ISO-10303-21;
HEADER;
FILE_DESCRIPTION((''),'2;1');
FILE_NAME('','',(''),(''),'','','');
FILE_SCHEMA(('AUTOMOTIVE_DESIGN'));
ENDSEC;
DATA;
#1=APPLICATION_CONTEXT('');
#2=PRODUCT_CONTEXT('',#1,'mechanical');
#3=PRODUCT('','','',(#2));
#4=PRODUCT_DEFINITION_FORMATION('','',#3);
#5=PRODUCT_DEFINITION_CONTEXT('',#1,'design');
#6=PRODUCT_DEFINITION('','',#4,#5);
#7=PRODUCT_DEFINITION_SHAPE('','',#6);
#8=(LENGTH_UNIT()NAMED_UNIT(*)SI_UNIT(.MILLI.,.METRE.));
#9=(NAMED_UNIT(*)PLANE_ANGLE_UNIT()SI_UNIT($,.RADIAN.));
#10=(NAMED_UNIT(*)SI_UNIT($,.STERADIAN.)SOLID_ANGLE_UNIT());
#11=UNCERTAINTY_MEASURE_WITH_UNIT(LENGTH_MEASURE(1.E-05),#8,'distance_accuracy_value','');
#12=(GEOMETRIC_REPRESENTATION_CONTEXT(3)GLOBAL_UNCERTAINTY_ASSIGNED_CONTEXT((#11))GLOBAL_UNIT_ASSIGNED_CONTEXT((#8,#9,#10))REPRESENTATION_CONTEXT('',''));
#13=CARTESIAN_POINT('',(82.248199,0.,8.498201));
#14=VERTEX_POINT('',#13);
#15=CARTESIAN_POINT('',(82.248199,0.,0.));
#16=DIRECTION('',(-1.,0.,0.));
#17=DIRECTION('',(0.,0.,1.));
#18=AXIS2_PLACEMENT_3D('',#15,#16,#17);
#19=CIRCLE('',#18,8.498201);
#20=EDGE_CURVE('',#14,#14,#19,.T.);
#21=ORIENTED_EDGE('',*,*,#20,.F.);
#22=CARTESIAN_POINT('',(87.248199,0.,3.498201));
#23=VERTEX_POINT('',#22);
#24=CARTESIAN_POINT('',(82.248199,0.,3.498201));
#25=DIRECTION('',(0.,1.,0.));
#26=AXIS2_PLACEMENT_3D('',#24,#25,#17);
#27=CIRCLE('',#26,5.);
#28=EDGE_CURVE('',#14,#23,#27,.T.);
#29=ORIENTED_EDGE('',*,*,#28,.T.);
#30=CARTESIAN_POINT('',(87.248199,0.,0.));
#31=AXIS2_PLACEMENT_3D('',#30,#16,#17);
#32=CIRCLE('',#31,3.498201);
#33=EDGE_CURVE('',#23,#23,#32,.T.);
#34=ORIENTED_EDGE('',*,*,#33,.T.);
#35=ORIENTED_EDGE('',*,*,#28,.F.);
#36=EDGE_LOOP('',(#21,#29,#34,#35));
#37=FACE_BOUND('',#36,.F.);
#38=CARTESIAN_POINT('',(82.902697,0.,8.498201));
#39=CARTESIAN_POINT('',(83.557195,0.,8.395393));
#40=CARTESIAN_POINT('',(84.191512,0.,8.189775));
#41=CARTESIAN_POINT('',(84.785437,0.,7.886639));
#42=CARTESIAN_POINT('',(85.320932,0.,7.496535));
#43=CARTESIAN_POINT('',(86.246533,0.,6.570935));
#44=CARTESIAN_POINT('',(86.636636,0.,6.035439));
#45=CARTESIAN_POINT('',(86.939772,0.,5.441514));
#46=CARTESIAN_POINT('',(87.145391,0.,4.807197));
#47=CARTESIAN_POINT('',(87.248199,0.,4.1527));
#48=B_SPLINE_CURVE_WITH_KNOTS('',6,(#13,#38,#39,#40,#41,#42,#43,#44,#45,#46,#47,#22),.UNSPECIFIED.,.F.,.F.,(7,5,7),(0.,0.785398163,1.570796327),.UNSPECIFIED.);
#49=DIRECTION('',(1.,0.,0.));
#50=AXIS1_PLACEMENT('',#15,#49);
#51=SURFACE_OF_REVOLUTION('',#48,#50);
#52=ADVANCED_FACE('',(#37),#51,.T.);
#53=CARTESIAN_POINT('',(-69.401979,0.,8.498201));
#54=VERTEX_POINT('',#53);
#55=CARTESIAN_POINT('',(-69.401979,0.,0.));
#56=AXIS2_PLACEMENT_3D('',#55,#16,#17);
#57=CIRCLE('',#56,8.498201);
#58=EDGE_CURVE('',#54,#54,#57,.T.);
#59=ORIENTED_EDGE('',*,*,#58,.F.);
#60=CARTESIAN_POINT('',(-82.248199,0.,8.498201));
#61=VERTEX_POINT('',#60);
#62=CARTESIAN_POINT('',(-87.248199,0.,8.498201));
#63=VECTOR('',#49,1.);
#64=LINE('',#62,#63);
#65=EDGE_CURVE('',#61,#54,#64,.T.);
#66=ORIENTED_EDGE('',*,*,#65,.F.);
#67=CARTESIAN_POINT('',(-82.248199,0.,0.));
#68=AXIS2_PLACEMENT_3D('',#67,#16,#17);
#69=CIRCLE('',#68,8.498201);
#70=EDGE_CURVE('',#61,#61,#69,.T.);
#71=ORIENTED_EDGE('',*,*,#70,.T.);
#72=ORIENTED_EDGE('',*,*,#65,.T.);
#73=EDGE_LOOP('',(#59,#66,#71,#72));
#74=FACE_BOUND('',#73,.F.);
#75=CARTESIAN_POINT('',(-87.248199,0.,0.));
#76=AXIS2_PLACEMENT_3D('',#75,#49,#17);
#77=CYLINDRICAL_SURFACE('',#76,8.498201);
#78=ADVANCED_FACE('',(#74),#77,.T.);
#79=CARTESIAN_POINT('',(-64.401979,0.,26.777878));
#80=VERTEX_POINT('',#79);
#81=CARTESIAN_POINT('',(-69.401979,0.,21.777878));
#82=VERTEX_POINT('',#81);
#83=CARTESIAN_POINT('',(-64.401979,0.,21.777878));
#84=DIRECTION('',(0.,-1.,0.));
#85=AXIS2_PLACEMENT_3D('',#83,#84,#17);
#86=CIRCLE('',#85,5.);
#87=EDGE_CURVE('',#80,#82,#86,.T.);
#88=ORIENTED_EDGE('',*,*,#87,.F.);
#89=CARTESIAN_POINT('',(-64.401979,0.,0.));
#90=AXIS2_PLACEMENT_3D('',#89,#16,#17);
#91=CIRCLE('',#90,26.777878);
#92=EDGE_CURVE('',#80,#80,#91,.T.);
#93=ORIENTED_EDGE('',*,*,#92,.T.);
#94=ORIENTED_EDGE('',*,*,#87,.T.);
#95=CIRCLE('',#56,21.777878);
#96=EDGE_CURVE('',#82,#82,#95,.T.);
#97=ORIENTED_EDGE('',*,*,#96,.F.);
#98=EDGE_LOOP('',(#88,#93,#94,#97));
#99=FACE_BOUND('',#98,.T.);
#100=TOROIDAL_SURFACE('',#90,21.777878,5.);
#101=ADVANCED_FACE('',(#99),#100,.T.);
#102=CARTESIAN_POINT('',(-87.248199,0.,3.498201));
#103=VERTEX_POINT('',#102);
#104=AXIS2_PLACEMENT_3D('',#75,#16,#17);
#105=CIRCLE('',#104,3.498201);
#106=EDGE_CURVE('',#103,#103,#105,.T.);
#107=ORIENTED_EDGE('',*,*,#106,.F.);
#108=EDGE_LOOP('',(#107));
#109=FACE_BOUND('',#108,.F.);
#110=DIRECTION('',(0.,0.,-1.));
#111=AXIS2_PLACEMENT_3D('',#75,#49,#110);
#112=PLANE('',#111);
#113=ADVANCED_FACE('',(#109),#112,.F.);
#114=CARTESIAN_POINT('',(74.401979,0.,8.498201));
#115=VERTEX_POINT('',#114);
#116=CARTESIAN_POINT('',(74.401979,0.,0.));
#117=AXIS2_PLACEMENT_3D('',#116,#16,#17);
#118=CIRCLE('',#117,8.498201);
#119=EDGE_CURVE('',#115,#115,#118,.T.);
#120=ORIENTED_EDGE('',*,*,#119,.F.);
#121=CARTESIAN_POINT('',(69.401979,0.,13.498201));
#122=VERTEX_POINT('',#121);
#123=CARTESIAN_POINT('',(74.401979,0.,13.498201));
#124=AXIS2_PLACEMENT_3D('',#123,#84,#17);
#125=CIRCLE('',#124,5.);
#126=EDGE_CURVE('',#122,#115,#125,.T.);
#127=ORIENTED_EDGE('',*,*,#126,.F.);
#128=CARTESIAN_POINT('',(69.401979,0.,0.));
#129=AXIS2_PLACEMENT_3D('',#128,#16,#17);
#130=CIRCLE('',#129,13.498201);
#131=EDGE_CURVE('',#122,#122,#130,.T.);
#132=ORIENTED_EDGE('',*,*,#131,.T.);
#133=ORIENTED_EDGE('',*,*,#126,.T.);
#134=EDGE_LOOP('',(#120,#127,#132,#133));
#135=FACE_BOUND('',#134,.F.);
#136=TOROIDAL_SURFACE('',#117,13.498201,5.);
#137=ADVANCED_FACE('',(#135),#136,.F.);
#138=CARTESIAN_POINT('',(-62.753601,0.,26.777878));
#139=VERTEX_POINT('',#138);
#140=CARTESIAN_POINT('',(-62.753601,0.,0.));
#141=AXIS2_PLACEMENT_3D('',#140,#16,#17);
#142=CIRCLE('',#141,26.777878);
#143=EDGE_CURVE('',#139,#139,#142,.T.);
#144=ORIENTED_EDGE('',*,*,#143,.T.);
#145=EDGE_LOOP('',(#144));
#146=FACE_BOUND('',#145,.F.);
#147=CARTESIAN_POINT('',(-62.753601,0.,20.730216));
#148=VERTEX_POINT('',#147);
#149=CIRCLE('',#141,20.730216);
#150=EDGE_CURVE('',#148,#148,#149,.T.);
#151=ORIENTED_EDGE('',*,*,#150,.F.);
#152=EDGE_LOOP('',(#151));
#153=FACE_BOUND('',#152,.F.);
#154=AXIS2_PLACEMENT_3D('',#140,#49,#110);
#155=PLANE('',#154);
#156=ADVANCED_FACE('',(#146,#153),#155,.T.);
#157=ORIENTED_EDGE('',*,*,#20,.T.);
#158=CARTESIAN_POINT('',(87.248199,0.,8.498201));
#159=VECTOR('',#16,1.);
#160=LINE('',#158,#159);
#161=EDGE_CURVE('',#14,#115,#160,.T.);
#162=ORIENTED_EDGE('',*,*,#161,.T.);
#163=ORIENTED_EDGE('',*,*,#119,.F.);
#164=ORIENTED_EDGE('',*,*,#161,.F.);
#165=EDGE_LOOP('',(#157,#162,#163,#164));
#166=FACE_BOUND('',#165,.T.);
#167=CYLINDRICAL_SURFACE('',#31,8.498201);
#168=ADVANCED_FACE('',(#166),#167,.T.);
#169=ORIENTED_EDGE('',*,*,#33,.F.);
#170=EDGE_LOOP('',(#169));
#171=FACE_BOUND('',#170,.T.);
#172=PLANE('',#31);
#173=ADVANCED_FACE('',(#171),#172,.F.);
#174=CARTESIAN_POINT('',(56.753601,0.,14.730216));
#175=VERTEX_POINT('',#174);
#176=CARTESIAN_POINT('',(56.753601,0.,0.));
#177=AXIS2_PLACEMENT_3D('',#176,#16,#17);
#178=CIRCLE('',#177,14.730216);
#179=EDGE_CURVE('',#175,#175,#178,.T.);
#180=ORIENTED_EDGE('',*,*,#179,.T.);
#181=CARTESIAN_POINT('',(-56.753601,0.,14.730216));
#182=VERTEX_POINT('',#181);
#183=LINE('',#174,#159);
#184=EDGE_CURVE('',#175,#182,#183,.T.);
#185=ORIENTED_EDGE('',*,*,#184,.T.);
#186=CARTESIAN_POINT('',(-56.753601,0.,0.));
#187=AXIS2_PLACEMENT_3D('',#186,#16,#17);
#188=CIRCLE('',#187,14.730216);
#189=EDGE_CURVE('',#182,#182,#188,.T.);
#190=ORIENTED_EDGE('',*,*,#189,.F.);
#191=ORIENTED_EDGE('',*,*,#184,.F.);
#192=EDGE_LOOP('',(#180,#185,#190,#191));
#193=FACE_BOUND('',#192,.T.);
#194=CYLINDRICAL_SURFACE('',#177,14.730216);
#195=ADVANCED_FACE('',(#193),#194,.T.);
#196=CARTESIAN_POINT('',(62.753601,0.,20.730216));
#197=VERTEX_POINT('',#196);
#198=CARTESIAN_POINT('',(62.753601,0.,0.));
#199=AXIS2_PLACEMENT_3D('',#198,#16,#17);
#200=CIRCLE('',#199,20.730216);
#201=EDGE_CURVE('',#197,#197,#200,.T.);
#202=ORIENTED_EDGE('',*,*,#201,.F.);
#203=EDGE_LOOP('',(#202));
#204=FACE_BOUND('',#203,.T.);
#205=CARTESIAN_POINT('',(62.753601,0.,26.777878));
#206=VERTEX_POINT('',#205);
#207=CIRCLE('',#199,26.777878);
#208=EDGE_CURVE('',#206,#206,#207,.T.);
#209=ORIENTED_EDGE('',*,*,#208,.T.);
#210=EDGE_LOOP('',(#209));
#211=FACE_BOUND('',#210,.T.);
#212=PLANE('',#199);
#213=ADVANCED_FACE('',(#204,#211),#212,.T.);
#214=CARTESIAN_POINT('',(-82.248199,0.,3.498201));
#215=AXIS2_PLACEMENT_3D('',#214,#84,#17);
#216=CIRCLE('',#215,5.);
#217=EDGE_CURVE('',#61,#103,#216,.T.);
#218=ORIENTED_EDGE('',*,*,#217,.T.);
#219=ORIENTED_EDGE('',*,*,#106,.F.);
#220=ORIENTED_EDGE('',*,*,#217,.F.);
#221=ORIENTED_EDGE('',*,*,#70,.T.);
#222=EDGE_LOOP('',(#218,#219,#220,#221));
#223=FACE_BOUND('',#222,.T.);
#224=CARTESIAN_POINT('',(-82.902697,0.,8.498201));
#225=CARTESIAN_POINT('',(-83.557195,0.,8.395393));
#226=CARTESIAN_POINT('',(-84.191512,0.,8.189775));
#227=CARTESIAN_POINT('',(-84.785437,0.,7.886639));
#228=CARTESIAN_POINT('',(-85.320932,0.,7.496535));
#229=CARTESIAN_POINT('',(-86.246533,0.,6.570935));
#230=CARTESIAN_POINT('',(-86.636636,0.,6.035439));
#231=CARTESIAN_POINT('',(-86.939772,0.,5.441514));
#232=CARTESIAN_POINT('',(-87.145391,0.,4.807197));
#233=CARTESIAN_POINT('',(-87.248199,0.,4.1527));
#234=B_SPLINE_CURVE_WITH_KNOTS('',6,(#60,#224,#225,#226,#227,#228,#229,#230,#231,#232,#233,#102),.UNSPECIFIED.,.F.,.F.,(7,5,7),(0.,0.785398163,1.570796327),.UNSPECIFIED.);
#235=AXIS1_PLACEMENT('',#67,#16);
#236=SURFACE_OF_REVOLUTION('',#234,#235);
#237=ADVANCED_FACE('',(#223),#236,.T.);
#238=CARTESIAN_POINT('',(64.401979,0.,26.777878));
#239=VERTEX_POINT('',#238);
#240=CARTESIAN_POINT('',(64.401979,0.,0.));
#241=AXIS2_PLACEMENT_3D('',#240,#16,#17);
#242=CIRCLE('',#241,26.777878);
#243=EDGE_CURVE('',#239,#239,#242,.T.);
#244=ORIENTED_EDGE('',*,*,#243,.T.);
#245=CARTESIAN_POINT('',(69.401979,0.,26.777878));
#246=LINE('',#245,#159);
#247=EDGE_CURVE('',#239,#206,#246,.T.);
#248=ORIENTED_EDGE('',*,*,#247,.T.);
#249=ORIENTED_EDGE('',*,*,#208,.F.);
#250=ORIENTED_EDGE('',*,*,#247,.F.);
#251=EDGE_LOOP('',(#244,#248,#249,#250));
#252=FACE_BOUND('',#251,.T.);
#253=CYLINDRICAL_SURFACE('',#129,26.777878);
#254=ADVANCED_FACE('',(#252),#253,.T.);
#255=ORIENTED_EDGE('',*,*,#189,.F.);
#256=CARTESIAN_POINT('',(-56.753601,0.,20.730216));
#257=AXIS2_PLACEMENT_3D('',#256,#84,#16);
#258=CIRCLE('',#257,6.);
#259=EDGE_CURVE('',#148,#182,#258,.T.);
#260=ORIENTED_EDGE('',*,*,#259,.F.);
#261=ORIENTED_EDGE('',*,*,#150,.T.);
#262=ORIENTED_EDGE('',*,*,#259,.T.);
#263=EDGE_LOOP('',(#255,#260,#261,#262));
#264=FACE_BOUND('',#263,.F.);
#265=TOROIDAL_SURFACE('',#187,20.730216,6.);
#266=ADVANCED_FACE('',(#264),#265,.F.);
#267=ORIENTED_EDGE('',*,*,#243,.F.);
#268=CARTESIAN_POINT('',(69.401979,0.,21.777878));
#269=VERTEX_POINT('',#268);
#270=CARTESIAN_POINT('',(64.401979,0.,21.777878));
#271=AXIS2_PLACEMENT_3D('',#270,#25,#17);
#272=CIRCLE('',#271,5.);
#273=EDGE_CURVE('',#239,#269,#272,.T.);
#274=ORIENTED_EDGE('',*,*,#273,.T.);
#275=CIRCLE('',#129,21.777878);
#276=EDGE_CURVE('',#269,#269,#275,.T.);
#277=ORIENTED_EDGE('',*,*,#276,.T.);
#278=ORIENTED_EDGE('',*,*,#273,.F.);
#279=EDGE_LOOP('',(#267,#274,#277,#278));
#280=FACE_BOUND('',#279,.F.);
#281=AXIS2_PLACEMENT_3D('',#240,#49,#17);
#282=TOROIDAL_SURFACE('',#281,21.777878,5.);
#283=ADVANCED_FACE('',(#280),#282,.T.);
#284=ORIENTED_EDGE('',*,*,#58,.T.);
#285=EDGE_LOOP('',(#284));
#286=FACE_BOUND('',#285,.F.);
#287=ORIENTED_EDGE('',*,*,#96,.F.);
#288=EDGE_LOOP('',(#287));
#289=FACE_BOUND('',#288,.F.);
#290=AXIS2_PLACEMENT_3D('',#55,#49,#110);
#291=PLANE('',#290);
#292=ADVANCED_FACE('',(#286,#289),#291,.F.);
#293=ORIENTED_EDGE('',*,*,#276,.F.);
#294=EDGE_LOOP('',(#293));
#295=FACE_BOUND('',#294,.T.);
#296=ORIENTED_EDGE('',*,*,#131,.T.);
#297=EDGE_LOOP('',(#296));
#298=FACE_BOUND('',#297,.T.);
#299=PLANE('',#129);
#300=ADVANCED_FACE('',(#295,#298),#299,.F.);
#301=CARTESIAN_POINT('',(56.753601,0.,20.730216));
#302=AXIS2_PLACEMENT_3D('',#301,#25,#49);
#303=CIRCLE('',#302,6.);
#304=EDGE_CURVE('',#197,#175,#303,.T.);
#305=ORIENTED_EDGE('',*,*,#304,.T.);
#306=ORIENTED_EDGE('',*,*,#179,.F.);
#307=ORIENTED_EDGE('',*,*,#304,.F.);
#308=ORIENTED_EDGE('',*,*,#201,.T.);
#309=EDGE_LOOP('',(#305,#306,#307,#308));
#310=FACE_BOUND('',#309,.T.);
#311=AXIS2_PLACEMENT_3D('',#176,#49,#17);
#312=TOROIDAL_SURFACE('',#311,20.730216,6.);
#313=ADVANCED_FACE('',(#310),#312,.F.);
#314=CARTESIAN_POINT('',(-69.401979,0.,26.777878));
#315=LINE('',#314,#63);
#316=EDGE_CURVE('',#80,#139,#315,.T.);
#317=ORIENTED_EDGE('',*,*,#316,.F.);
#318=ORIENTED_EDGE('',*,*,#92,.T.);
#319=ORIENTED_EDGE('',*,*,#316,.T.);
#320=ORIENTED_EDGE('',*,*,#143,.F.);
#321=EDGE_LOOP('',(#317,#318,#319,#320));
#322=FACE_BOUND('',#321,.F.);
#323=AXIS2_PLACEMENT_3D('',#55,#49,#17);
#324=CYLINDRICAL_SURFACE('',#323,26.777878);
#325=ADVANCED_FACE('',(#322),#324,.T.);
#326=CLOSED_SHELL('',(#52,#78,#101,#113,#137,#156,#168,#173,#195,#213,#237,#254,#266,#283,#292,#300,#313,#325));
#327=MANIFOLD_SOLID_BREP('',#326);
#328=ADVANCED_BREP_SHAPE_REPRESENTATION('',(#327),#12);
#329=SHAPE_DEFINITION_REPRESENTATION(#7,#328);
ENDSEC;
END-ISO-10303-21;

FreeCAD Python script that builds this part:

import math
import FreeCAD as App
import Part
import Sketcher
from FreeCAD import Vector


def edges_at(feature, points):
    """Names of the edges that pass closest to the given points."""
    edges = feature.Shape.Edges
    near = lambda p: min(range(len(edges)), key=lambda i: edges[i].distToShape(Part.Vertex(*p))[0])
    return sorted({f"Edge{near(p) + 1}" for p in points})

doc = App.newDocument("Part")
body = doc.addObject("PartDesign::Body", "Body")

# Sketch on XZ plane
sketch1 = body.newObject("Sketcher::SketchObject", "Sketch")
sketch1.AttachmentSupport = (doc.getObject("XZ_Plane"), [""])
sketch1.MapMode = "FlatFace"
sketch1.addGeometry(Part.LineSegment(Vector(56.753601, 14.730216, 0), Vector(0, 14.730216, 0)), False)
sketch1.addGeometry(Part.LineSegment(Vector(0, 14.730216, 0), Vector(0, 0, 0)), False)
sketch1.addGeometry(Part.LineSegment(Vector(0, 0, 0), Vector(87.248199, 0, 0)), False)
sketch1.addGeometry(Part.LineSegment(Vector(87.248199, 0, 0), Vector(87.248199, 8.498201, 0)), False)
sketch1.addGeometry(Part.LineSegment(Vector(87.248199, 8.498201, 0), Vector(69.401979, 8.498201, 0)), False)
sketch1.addGeometry(Part.LineSegment(Vector(69.401979, 8.498201, 0), Vector(69.401979, 26.777878, 0)), False)
sketch1.addGeometry(Part.LineSegment(Vector(69.401979, 26.777878, 0), Vector(62.753601, 26.777878, 0)), False)
sketch1.addGeometry(Part.LineSegment(Vector(62.753601, 26.777878, 0), Vector(62.753601, 20.730216, 0)), False)
sketch1.addGeometry(Part.ArcOfCircle(Part.Circle(Vector(56.753601, 20.730216, 0), Vector(0, 0, 1), 6), math.radians(-90), math.radians(0)), False)
sketch1.addConstraint(Sketcher.Constraint("Coincident", 0, 2, 1, 1))
sketch1.addConstraint(Sketcher.Constraint("Coincident", 1, 2, 2, 1))
sketch1.addConstraint(Sketcher.Constraint("Coincident", 2, 2, 3, 1))
sketch1.addConstraint(Sketcher.Constraint("Coincident", 3, 2, 4, 1))
sketch1.addConstraint(Sketcher.Constraint("Coincident", 4, 2, 5, 1))
sketch1.addConstraint(Sketcher.Constraint("Coincident", 5, 2, 6, 1))
sketch1.addConstraint(Sketcher.Constraint("Coincident", 6, 2, 7, 1))
sketch1.addConstraint(Sketcher.Constraint("Tangent", 7, 2, 8, 2))
sketch1.addConstraint(Sketcher.Constraint("Tangent", 8, 1, 0, 1))
sketch1.addConstraint(Sketcher.Constraint("Horizontal", 0))
sketch1.addConstraint(Sketcher.Constraint("Vertical", 1))
sketch1.addConstraint(Sketcher.Constraint("Horizontal", 2))
sketch1.addConstraint(Sketcher.Constraint("Vertical", 3))
sketch1.addConstraint(Sketcher.Constraint("Horizontal", 4))
sketch1.addConstraint(Sketcher.Constraint("Vertical", 5))
sketch1.addConstraint(Sketcher.Constraint("Horizontal", 6))
sketch1.addConstraint(Sketcher.Constraint("Vertical", 7))
sketch1.addConstraint(Sketcher.Constraint("Coincident", 1, 2, -1, 1))
sketch1.addConstraint(Sketcher.Constraint("Radius", 8, 6.0))
sketch1.addConstraint(Sketcher.Constraint("DistanceX", 0, 2, 0, 1, 56.753601))
sketch1.addConstraint(Sketcher.Constraint("DistanceX", 2, 1, 2, 2, 87.248199))
sketch1.addConstraint(Sketcher.Constraint("DistanceY", 3, 1, 3, 2, 8.498201))
sketch1.addConstraint(Sketcher.Constraint("DistanceX", 4, 2, 4, 1, 17.846219))
sketch1.addConstraint(Sketcher.Constraint("DistanceY", 1, 2, 1, 1, 14.730216))
sketch1.addConstraint(Sketcher.Constraint("DistanceY", 5, 1, 5, 2, 18.279677))
revolution = body.newObject("PartDesign::Revolution", "Revolution")
revolution.Profile = sketch1
revolution.ReferenceAxis = (sketch1, ["H_Axis"])
revolution.Angle = 360
body2 = doc.addObject("PartDesign::Body", "Body001")
doc.recompute()

body2.BaseFeature = body
doc.recompute()

mirroring = doc.addObject("Part::Mirroring", "Mirroring")
mirroring.Source = body
mirroring.Base = Vector(0, 0, 0)
mirroring.Normal = Vector(-1, 0, 0)
body3 = doc.addObject("PartDesign::Body", "Body002")
body3.BaseFeature = mirroring
boolean = body2.newObject("PartDesign::Boolean", "Boolean")
boolean.Type = "Fuse"
boolean.addObjects([body3])
doc.recompute()

fillet = body2.newObject("PartDesign::Fillet", "Fillet")
fillet.Base = (boolean, edges_at(boolean, [(-87.248, 0, -8.498), (-69.402, 0, -26.778)]))
fillet.Radius = 5
doc.recompute()

fillet2 = body2.newObject("PartDesign::Fillet", "Fillet001")
fillet2.Base = (fillet, edges_at(fillet, [(69.402, 0, -26.778), (69.402, 0, -8.498), (87.248, 0, -8.498)]))
fillet2.Radius = 5
mirroring.Visibility = False

doc.recompute()
